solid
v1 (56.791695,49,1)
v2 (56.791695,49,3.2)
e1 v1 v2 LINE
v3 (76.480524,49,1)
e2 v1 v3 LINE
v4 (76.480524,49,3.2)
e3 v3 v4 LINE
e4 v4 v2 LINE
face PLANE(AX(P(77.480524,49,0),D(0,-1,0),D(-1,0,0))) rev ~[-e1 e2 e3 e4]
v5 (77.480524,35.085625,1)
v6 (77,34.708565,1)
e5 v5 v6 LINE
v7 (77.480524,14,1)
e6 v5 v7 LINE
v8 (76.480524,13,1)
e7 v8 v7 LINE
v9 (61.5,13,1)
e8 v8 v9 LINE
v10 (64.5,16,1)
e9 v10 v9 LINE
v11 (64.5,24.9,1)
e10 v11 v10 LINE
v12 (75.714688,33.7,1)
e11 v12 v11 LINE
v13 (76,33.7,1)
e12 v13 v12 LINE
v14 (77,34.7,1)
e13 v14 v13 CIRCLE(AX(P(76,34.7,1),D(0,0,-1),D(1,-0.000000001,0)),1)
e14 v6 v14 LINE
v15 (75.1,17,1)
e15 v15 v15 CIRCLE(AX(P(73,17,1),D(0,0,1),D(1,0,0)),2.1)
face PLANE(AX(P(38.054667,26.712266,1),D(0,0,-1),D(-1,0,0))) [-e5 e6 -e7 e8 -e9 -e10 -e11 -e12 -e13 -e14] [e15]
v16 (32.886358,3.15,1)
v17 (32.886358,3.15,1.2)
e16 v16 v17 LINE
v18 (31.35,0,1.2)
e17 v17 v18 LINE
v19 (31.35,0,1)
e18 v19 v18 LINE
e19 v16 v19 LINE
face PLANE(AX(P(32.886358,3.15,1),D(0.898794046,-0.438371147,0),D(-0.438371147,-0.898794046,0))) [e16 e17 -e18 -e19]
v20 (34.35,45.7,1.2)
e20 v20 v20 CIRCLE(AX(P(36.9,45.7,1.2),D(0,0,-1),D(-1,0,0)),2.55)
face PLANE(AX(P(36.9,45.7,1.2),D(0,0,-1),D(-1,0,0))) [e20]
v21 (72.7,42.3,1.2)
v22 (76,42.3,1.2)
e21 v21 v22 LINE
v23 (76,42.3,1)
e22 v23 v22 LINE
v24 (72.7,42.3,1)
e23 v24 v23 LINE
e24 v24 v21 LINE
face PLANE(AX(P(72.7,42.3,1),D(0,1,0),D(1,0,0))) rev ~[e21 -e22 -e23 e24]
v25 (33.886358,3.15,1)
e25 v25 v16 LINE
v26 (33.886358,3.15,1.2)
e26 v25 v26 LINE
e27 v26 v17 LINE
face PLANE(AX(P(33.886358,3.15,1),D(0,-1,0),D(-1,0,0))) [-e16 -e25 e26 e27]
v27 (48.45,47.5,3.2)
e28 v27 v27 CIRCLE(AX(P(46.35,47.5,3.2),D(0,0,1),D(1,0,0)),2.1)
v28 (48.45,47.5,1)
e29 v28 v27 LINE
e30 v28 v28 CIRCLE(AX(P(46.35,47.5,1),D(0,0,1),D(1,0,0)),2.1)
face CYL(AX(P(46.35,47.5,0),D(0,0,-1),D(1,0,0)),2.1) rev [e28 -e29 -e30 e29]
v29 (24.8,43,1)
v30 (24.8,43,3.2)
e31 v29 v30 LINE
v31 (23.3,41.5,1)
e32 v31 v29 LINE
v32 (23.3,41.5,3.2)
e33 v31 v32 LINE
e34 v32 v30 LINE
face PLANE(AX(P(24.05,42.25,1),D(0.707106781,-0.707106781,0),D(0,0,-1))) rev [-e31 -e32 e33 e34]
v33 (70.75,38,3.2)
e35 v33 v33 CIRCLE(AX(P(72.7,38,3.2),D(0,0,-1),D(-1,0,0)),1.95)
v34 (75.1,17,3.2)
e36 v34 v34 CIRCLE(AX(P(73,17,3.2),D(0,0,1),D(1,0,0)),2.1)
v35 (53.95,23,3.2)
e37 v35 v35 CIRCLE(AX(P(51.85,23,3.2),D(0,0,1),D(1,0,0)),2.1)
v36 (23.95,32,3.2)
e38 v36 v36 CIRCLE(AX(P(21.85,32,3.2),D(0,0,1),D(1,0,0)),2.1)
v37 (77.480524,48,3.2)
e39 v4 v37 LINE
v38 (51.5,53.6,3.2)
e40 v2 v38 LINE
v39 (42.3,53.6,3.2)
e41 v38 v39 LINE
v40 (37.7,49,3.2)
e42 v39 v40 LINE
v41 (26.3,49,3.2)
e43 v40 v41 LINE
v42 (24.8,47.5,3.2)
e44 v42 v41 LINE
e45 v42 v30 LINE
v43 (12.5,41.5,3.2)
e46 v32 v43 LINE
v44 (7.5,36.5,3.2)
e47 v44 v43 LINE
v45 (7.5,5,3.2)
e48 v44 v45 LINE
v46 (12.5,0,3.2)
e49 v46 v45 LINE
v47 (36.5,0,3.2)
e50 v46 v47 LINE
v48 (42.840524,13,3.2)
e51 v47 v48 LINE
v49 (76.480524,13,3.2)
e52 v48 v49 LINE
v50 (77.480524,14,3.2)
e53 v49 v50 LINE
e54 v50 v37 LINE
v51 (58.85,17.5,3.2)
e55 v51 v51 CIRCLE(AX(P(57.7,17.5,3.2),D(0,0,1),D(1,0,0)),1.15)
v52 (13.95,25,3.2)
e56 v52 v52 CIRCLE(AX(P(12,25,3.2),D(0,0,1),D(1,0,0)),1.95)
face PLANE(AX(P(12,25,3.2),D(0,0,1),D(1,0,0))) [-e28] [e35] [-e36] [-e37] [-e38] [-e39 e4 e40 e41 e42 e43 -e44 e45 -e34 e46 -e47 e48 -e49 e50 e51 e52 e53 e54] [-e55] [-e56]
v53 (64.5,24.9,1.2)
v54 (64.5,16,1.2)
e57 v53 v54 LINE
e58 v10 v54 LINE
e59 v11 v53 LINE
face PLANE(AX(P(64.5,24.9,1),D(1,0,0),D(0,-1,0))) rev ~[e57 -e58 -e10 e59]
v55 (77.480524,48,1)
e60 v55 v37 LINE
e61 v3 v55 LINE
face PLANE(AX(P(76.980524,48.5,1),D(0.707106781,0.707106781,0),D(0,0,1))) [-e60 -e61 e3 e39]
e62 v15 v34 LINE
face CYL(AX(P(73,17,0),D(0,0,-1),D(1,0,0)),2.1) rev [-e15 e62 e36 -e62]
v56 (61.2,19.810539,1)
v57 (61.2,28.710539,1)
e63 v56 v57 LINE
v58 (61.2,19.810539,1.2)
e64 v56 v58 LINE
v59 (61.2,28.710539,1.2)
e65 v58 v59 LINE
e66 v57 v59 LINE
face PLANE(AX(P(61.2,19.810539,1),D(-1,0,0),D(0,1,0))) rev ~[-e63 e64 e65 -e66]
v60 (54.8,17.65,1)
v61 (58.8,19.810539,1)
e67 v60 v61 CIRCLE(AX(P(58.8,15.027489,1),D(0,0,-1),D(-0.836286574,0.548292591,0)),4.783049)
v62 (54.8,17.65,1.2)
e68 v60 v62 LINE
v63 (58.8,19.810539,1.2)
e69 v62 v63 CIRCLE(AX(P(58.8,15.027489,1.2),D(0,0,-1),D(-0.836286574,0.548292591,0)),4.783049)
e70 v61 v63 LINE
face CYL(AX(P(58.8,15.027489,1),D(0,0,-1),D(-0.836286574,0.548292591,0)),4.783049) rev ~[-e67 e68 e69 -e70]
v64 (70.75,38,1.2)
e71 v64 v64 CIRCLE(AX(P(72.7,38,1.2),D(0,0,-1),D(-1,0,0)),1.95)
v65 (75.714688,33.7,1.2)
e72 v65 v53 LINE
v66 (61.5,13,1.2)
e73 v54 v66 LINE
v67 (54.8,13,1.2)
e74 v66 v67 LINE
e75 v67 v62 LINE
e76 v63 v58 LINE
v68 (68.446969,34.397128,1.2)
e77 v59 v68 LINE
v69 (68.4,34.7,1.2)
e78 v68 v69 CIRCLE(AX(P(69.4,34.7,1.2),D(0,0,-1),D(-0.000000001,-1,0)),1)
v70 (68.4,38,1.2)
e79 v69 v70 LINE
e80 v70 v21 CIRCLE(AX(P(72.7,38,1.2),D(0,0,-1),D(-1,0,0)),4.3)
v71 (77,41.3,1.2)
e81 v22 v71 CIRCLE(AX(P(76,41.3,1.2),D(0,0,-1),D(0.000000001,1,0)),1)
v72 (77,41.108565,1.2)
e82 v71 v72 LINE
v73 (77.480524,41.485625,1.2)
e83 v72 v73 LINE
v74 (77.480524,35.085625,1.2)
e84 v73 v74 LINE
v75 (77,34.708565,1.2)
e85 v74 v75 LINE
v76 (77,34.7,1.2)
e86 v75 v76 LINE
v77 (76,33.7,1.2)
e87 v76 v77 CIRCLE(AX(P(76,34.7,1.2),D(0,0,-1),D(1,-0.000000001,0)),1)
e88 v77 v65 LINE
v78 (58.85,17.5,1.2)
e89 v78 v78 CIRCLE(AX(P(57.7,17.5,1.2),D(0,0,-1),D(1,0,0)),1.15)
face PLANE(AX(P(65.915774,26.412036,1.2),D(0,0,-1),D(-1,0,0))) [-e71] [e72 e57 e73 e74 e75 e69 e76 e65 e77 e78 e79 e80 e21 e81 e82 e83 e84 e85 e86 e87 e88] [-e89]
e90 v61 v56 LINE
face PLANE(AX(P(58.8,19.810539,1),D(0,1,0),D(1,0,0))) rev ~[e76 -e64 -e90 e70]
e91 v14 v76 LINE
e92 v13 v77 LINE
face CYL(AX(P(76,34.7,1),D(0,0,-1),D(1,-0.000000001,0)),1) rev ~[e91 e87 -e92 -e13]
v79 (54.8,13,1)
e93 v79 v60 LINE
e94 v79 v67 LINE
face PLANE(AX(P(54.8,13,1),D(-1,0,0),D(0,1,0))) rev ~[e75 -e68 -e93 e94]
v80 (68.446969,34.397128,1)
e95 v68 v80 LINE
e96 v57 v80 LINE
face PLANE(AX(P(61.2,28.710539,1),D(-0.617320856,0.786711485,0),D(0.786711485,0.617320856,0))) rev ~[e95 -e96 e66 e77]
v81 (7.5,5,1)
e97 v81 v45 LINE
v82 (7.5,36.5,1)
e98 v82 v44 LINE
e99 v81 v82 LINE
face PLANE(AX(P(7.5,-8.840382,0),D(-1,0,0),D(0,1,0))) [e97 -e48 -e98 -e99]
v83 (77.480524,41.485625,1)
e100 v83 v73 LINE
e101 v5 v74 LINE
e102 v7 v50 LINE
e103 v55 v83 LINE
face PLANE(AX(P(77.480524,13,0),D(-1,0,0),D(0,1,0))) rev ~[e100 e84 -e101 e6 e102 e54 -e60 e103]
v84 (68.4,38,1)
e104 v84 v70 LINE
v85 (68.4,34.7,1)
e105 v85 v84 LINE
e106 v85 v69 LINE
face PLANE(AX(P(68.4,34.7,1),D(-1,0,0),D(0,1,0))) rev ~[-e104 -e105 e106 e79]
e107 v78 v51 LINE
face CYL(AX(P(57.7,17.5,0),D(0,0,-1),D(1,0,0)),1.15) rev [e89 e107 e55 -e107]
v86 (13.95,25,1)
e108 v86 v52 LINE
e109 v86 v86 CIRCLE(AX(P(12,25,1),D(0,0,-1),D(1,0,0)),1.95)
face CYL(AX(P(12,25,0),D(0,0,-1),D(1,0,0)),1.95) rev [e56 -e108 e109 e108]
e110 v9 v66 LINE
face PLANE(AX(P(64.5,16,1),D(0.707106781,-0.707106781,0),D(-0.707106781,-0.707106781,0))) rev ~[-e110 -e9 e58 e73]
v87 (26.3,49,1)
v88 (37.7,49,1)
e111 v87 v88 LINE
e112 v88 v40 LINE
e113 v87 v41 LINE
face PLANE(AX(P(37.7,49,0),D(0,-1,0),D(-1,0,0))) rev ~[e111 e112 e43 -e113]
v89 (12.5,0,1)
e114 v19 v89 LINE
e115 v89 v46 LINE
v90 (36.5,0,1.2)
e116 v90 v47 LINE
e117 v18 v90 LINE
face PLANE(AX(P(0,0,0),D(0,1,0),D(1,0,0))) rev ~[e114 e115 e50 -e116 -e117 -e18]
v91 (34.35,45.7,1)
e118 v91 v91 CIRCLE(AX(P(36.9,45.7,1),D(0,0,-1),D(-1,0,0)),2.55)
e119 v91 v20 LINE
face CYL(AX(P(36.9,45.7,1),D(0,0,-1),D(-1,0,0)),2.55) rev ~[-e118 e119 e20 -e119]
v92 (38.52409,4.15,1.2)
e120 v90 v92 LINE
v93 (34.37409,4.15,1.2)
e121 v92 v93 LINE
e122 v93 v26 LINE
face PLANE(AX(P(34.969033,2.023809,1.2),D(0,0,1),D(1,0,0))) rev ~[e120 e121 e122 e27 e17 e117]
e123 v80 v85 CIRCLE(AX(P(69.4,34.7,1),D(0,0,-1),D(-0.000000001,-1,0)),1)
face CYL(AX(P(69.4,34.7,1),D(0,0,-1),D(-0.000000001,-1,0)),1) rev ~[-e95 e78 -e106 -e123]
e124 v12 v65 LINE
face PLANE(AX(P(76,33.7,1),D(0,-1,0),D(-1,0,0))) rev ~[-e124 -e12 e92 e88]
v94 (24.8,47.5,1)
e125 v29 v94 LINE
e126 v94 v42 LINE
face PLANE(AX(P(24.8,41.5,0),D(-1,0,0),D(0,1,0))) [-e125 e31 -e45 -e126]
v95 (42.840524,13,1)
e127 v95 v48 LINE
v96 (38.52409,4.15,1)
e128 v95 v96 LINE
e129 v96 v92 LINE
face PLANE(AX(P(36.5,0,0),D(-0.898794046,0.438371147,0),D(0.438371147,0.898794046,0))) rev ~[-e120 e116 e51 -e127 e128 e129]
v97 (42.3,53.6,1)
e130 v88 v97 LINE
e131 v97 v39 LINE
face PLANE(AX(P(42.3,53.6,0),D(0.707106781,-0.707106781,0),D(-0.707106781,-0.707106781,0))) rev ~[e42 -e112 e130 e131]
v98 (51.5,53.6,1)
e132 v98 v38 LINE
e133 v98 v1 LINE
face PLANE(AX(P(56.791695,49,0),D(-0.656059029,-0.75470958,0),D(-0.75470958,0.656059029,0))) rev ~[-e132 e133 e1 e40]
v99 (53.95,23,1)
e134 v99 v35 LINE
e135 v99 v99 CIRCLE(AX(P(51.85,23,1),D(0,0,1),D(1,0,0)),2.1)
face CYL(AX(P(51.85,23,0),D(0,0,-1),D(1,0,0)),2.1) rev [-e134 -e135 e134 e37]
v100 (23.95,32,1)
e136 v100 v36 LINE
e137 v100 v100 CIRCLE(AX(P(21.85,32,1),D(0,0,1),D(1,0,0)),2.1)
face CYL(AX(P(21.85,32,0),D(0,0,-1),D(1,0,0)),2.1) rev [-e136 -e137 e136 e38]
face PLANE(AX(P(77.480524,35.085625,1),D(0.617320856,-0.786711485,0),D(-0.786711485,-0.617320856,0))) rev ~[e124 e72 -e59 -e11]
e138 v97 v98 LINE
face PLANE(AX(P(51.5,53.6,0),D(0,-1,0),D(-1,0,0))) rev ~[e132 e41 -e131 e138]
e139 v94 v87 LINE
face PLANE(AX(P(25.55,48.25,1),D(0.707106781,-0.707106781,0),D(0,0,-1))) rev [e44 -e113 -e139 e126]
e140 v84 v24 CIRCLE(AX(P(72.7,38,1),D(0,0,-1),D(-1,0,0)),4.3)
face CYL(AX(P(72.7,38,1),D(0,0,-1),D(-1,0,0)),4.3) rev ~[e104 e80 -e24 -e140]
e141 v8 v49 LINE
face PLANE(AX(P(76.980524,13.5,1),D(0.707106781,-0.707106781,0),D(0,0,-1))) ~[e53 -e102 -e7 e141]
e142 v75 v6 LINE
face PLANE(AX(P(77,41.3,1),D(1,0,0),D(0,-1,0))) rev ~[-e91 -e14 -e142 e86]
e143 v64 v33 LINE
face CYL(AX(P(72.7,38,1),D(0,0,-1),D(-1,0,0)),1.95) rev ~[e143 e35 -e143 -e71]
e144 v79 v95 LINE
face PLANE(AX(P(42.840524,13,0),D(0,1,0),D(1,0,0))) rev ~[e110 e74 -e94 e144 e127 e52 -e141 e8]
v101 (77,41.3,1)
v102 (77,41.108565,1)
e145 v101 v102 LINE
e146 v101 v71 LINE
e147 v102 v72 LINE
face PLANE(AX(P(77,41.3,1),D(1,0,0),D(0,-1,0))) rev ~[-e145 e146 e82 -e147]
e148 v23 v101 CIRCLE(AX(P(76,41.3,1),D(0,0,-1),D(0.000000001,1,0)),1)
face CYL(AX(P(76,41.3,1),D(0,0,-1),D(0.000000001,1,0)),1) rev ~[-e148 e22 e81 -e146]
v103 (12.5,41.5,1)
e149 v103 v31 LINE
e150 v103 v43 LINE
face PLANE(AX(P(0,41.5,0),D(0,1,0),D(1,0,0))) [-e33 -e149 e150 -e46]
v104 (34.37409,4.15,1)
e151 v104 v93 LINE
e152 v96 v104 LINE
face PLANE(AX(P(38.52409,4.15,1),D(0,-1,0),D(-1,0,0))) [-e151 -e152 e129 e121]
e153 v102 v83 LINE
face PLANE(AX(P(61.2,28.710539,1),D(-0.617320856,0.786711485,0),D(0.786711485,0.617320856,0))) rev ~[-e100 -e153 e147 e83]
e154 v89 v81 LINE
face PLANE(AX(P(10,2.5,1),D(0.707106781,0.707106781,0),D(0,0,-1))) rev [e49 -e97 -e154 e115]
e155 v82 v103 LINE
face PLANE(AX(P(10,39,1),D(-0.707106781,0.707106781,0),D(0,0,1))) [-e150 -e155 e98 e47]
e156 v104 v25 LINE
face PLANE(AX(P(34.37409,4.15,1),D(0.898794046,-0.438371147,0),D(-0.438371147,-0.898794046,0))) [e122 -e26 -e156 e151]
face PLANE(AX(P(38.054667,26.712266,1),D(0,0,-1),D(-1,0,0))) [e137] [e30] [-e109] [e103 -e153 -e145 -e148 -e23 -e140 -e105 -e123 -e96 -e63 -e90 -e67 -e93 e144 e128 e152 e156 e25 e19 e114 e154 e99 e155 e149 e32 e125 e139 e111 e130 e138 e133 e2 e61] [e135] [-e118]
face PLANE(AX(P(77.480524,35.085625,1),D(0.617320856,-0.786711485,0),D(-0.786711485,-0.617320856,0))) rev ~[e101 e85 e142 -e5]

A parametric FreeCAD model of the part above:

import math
import FreeCAD as App
import Part
import Sketcher

V = App.Vector
Q = App.Units.Quantity


def edges_at(feature, points):
    """Names of the edges that pass closest to the given points."""
    edges = feature.Shape.Edges
    near = lambda p: min(range(len(edges)), key=lambda i: edges[i].distToShape(Part.Vertex(*p))[0])
    return sorted({f"Edge{near(p) + 1}" for p in points})

doc = App.newDocument("Part")
body = doc.addObject("PartDesign::Body", "Body")

# Sketch on XY plane
sketch1 = body.newObject("Sketcher::SketchObject", "Sketch")
sketch1.AttachmentSupport = (doc.getObject("XY_Plane"), [""])
sketch1.MapMode = "FlatFace"
sketch1.addGeometry([
    Part.LineSegment(V(0, 0, 0), V(36.5, 0, 0)),  # 0
    Part.LineSegment(V(36.5, 0, 0), V(42.8, 13, 0)),  # 1
    Part.LineSegment(V(42.8, 13, 0), V(77.5, 13, 0)),  # 2
    Part.LineSegment(V(77.5, 13, 0), V(77.5, 49, 0)),  # 3
    Part.LineSegment(V(77.5, 49, 0), V(56.8, 49, 0)),  # 4
    Part.LineSegment(V(56.8, 49, 0), V(51.5, 53.6, 0)),  # 5
    Part.LineSegment(V(51.5, 53.6, 0), V(42.3, 53.6, 0)),  # 6
    Part.LineSegment(V(42.3, 53.6, 0), V(37.7, 49, 0)),  # 7
    Part.LineSegment(V(37.7, 49, 0), V(11.9, 49, 0)),  # 8
    Part.LineSegment(V(11.9, 49, 0), V(0, 37.1, 0)),  # 9
    Part.LineSegment(V(0, 37.1, 0), V(0, 0, 0)),  # 10
    Part.Circle(V(12, 25, 0), V(0, 0, 1), 4.2),  # 11
    Part.Circle(V(21.9, 32, 0), V(0, 0, 1), 2.1),  # 12
    Part.Circle(V(57.7, 17.5, 0), V(0, 0, 1), 2.7),  # 13
    Part.Circle(V(51.9, 23, 0), V(0, 0, 1), 2.1),  # 14
    Part.Circle(V(73, 17, 0), V(0, 0, 1), 2.1),  # 15
    Part.Circle(V(46.4, 47.5, 0), V(0, 0, 1), 2.1),  # 16
], False)
sketch1.addConstraint([
    Sketcher.Constraint("Coincident", 0, 2, 1, 1),
    Sketcher.Constraint("Coincident", 1, 2, 2, 1),
    Sketcher.Constraint("Coincident", 2, 2, 3, 1),
    Sketcher.Constraint("Coincident", 3, 2, 4, 1),
    Sketcher.Constraint("Coincident", 4, 2, 5, 1),
    Sketcher.Constraint("Coincident", 5, 2, 6, 1),
    Sketcher.Constraint("Coincident", 6, 2, 7, 1),
    Sketcher.Constraint("Coincident", 7, 2, 8, 1),
    Sketcher.Constraint("Coincident", 8, 2, 9, 1),
    Sketcher.Constraint("Coincident", 9, 2, 10, 1),
    Sketcher.Constraint("Coincident", 10, 2, 0, 1),
    Sketcher.Constraint("Horizontal", 0),
    Sketcher.Constraint("Horizontal", 2),
    Sketcher.Constraint("Vertical", 3),
    Sketcher.Constraint("Horizontal", 4),
    Sketcher.Constraint("Horizontal", 6),
    Sketcher.Constraint("Horizontal", 8),
    Sketcher.Constraint("Vertical", 10),
    Sketcher.Constraint("Coincident", 10, 2, -1, 1),
    Sketcher.Constraint("Equal", 12, 14),
    Sketcher.Constraint("Equal", 14, 15),
    Sketcher.Constraint("Equal", 15, 16),
    Sketcher.Constraint("Parallel", 7, 9),
    Sketcher.Constraint("Horizontal", 4, 2, 7, 2),
    Sketcher.Constraint("Diameter", 11, 8.4),
    Sketcher.Constraint("Diameter", 12, 4.2),
    Sketcher.Constraint("Diameter", 13, 5.4),
    Sketcher.Constraint("DistanceY", 3, 1, 3, 2, 36.0),
    Sketcher.Constraint("Angle", 1, Q("64 deg")),
    Sketcher.Constraint("Angle", 5, Q("139 deg")),
    Sketcher.Constraint("Angle", 7, Q("-135 deg")),
    Sketcher.Constraint("DistanceX", 0, 1, 0, 2, 36.5),
    Sketcher.Constraint("DistanceX", 6, 2, 6, 1, 9.2),
    Sketcher.Constraint("DistanceX", 8, 2, 8, 1, 25.8),
    Sketcher.Constraint("DistanceY", 10, 2, 10, 1, 37.1),
    Sketcher.Constraint("DistanceX", -1, 1, 11, 3, 12.0),
    Sketcher.Constraint("DistanceY", -1, 1, 11, 3, 25.0),
    Sketcher.Constraint("DistanceY", -1, 1, 12, 3, 32.0),
    Sketcher.Constraint("DistanceY", -1, 1, 14, 3, 23.0),
    Sketcher.Constraint("DistanceX", -1, 1, 15, 3, 73.0),
    Sketcher.Constraint("DistanceY", -1, 1, 15, 3, 17.0),
    Sketcher.Constraint("DistanceY", -1, 1, 1, 2, 13.0),
    Sketcher.Constraint("DistanceX", 12, 3, 14, 3, 30.0),
    Sketcher.Constraint("DistanceY", 13, 3, 16, 3, 30.0),
    Sketcher.Constraint("DistanceX", 2, 1, 2, 2, 34.64),
    Sketcher.Constraint("DistanceX", -1, 1, 13, 3, 57.7),
    Sketcher.Constraint("DistanceY", -1, 1, 13, 3, 17.5),
    Sketcher.Constraint("DistanceX", -1, 1, 5, 2, 51.5),
    Sketcher.Constraint("DistanceX", 16, 3, 14, 3, 5.5),
    Sketcher.Constraint("DistanceX", -1, 1, 12, 3, 21.85),
])
pad1 = body.newObject("PartDesign::Pad", "Pad")
pad1.Profile = sketch1
pad1.Length = 3.2

# Sketch on XY plane
sketch2 = body.newObject("Sketcher::SketchObject", "Sketch001")
sketch2.AttachmentSupport = (doc.getObject("XY_Plane"), [""])
sketch2.MapMode = "FlatFace"
sketch2.addGeometry([
    Part.Circle(V(12, 25, 0), V(0, 0, 1), 4.2),
    Part.Circle(V(12, 25, 0), V(0, 0, 1), 1.9),
    Part.Circle(V(57.7, 17.5, 0), V(0, 0, 1), 2.7),
    Part.Circle(V(57.7, 17.5, 0), V(0, 0, 1), 1.1),
], False)
sketch2.addConstraint([
    Sketcher.Constraint("Coincident", 1, 3, 0, 3),
    Sketcher.Constraint("Coincident", 3, 3, 2, 3),
    Sketcher.Constraint("Diameter", 0, 8.4),
    Sketcher.Constraint("Diameter", 1, 3.9),
    Sketcher.Constraint("Diameter", 2, 5.4),
    Sketcher.Constraint("Diameter", 3, 2.3),
    Sketcher.Constraint("DistanceX", -1, 1, 0, 3, 12.0),
    Sketcher.Constraint("DistanceY", -1, 1, 0, 3, 25.0),
    Sketcher.Constraint("DistanceX", -1, 1, 2, 3, 57.7),
    Sketcher.Constraint("DistanceY", -1, 1, 2, 3, 17.5),
])
pad2 = body.newObject("PartDesign::Pad", "Pad001")
pad2.Profile = sketch2
pad2.Length = 3.2

# Sketch on XY plane
sketch3 = body.newObject("Sketcher::SketchObject", "Sketch002")
sketch3.AttachmentSupport = (doc.getObject("XY_Plane"), [""])
sketch3.MapMode = "FlatFace"
sketch3.addGeometry([
    Part.LineSegment(V(11.9, 49, 0), V(37.7, 49, 0)),  # 0
    Part.LineSegment(V(37.7, 49, 0), V(42.3, 53.6, 0)),  # 1
    Part.LineSegment(V(42.3, 53.6, 0), V(51.5, 53.6, 0)),  # 2
    Part.LineSegment(V(51.5, 53.6, 0), V(56.8, 49, 0)),  # 3
    Part.LineSegment(V(56.8, 49, 0), V(77.5, 49, 0)),  # 4
    Part.LineSegment(V(77.5, 49, 0), V(77.5, 13, 0)),  # 5
    Part.LineSegment(V(77.5, 13, 0), V(42.8, 13, 0)),  # 6
    Part.LineSegment(V(42.8, 13, 0), V(36.5, 0, 0)),  # 7
    Part.LineSegment(V(36.5, 0, 0), V(0, 0, 0)),  # 8
    Part.LineSegment(V(0, 0, 0), V(0, 37.1, 0)),  # 9
    Part.LineSegment(V(0, 37.1, 0), V(11.9, 49, 0)),  # 10
    Part.Circle(V(73, 17, 0), V(0, 0, 1), 2.1),  # 11
    Part.Circle(V(57.7, 17.5, 0), V(0, 0, 1), 1.1),  # 12
    Part.Circle(V(51.9, 23, 0), V(0, 0, 1), 2.1),  # 13
    Part.Circle(V(12, 25, 0), V(0, 0, 1), 1.9),  # 14
    Part.Circle(V(21.9, 32, 0), V(0, 0, 1), 2.1),  # 15
    Part.Circle(V(46.4, 47.5, 0), V(0, 0, 1), 2.1),  # 16
], False)
sketch3.addConstraint([
    Sketcher.Constraint("Coincident", 0, 2, 1, 1),
    Sketcher.Constraint("Coincident", 1, 2, 2, 1),
    Sketcher.Constraint("Coincident", 2, 2, 3, 1),
    Sketcher.Constraint("Coincident", 3, 2, 4, 1),
    Sketcher.Constraint("Coincident", 4, 2, 5, 1),
    Sketcher.Constraint("Coincident", 5, 2, 6, 1),
    Sketcher.Constraint("Coincident", 6, 2, 7, 1),
    Sketcher.Constraint("Coincident", 7, 2, 8, 1),
    Sketcher.Constraint("Coincident", 8, 2, 9, 1),
    Sketcher.Constraint("Coincident", 9, 2, 10, 1),
    Sketcher.Constraint("Coincident", 10, 2, 0, 1),
    Sketcher.Constraint("Horizontal", 0),
    Sketcher.Constraint("Horizontal", 2),
    Sketcher.Constraint("Horizontal", 4),
    Sketcher.Constraint("Vertical", 5),
    Sketcher.Constraint("Horizontal", 6),
    Sketcher.Constraint("Horizontal", 8),
    Sketcher.Constraint("Vertical", 9),
    Sketcher.Constraint("Coincident", 8, 2, -1, 1),
    Sketcher.Constraint("Equal", 11, 13),
    Sketcher.Constraint("Equal", 13, 15),
    Sketcher.Constraint("Equal", 15, 16),
    Sketcher.Constraint("Parallel", 1, 10),
    Sketcher.Constraint("Horizontal", 0, 2, 3, 2),
    Sketcher.Constraint("Diameter", 11, 4.2),
    Sketcher.Constraint("Diameter", 12, 2.3),
    Sketcher.Constraint("Diameter", 14, 3.9),
    Sketcher.Constraint("DistanceY", 5, 2, 5, 1, 36.0),
    Sketcher.Constraint("Angle", 1, Q("45 deg")),
    Sketcher.Constraint("Angle", 3, Q("-41 deg")),
    Sketcher.Constraint("Angle", 7, Q("-116 deg")),
    Sketcher.Constraint("DistanceX", 0, 1, 0, 2, 25.8),
    Sketcher.Constraint("DistanceX", 2, 1, 2, 2, 9.2),
    Sketcher.Constraint("DistanceX", 8, 2, 8, 1, 36.5),
    Sketcher.Constraint("DistanceY", 9, 1, 9, 2, 37.1),
    Sketcher.Constraint("DistanceX", -1, 1, 11, 3, 73.0),
    Sketcher.Constraint("DistanceY", -1, 1, 11, 3, 17.0),
    Sketcher.Constraint("DistanceY", -1, 1, 13, 3, 23.0),
    Sketcher.Constraint("DistanceX", -1, 1, 14, 3, 12.0),
    Sketcher.Constraint("DistanceY", -1, 1, 14, 3, 25.0),
    Sketcher.Constraint("DistanceY", -1, 1, 15, 3, 32.0),
    Sketcher.Constraint("DistanceY", -1, 1, 0, 2, 49.0),
    Sketcher.Constraint("DistanceX", 15, 3, 13, 3, 30.0),
    Sketcher.Constraint("DistanceY", 12, 3, 16, 3, 30.0),
    Sketcher.Constraint("DistanceX", 0, 2, 12, 3, 20.0),
    Sketcher.Constraint("DistanceX", 6, 2, 6, 1, 34.64),
    Sketcher.Constraint("DistanceY", -1, 1, 12, 3, 17.5),
    Sketcher.Constraint("DistanceX", -1, 1, 1, 2, 42.3),
    Sketcher.Constraint("DistanceX", 16, 3, 13, 3, 5.5),
    Sketcher.Constraint("DistanceX", -1, 1, 13, 3, 51.85),
])
pocket1 = body.newObject("PartDesign::Pocket", "Pocket")
pocket1.Profile = sketch3
pocket1.Length = 1
pocket1.Reversed = True
doc.recompute()

chamfer = body.newObject("PartDesign::Chamfer", "Chamfer")
chamfer.Base = (pocket1, edges_at(pocket1, [(0, 0, 2.1)]))
chamfer.Size = 1
doc.recompute()

chamfer2 = body.newObject("PartDesign::Chamfer", "Chamfer001")
chamfer2.Base = (chamfer, edges_at(chamfer, [(77.481, 13, 2.1)]))
chamfer2.Size = 1

# Sketch on XY plane
sketch4 = body.newObject("Sketcher::SketchObject", "Sketch003")
sketch4.AttachmentSupport = (doc.getObject("XY_Plane"), [""])
sketch4.MapMode = "FlatFace"
sketch4.AttachmentOffset = App.Placement(V(0, 0, 1), App.Rotation())
sketch4.addGeometry(Part.Circle(V(72.7, 38, 0), V(0, 0, 1), 1.9), False)
sketch4.addConstraint([
    Sketcher.Constraint("Diameter", 0, 3.9),
    Sketcher.Constraint("DistanceY", -1, 1, 0, 3, 38.0),
    Sketcher.Constraint("DistanceX", -1, 1, 0, 3, 72.7),
])
pocket2 = body.newObject("PartDesign::Pocket", "Pocket001")
pocket2.Profile = sketch4
pocket2.Length = 10
pocket2.Reversed = True

# Sketch on XY plane
sketch5 = body.newObject("Sketcher::SketchObject", "Sketch004")
sketch5.AttachmentSupport = (doc.getObject("XY_Plane"), [""])
sketch5.MapMode = "FlatFace"
sketch5.addGeometry([
    Part.LineSegment(V(0, 49, 0), V(0, 42, 0)),
    Part.LineSegment(V(0, 42, 0), V(25, 42, 0)),
    Part.LineSegment(V(25, 42, 0), V(25, 49, 0)),
    Part.LineSegment(V(25, 49, 0), V(0, 49, 0)),
], False)
sketch5.addConstraint([
    Sketcher.Constraint("Coincident", 0, 2, 1, 1),
    Sketcher.Constraint("Coincident", 1, 2, 2, 1),
    Sketcher.Constraint("Coincident", 2, 2, 3, 1),
    Sketcher.Constraint("Coincident", 3, 2, 0, 1),
    Sketcher.Constraint("Vertical", 0),
    Sketcher.Constraint("Horizontal", 1),
    Sketcher.Constraint("Vertical", 2),
    Sketcher.Constraint("Horizontal", 3),
    Sketcher.Constraint("PointOnObject", 0, 2, -2),
    Sketcher.Constraint("DistanceX", 1, 1, 1, 2, 24.8),
    Sketcher.Constraint("DistanceY", 0, 2, 0, 1, 7.5),
    Sketcher.Constraint("DistanceY", -1, 1, 2, 2, 49.0),
])
pocket3 = body.newObject("PartDesign::Pocket", "Pocket002")
pocket3.Profile = sketch5
pocket3.Length = 10
pocket3.Reversed = True
doc.recompute()

chamfer3 = body.newObject("PartDesign::Chamfer", "Chamfer002")
chamfer3.Base = (pocket3, edges_at(pocket3, [(24.8, 49, 2.1), (24.8, 41.5, 2.1)]))
chamfer3.Size = 1.5

# Sketch on XY plane
sketch6 = body.newObject("Sketcher::SketchObject", "Sketch005")
sketch6.AttachmentSupport = (doc.getObject("XY_Plane"), [""])
sketch6.MapMode = "FlatFace"
sketch6.AttachmentOffset = App.Placement(V(0, 0, 1), App.Rotation())
sketch6.addGeometry([
    Part.Circle(V(36.9, 45.7, 0), V(0, 0, 1), 2.5),  # 0
    Part.LineSegment(V(72.7, 42.3, 0), V(76, 42.3, 0)),  # 1
    Part.ArcOfCircle(Part.Circle(V(76, 41.3, 0), V(0, 0, 1), 1), math.radians(0), math.radians(90)),  # 2
    Part.LineSegment(V(77, 41.3, 0), V(77, 34.7, 0)),  # 3
    Part.ArcOfCircle(Part.Circle(V(76, 34.7, 0), V(0, 0, 1), 1), math.radians(-90), math.radians(0)),  # 4
    Part.LineSegment(V(76, 33.7, 0), V(69.4, 33.7, 0)),  # 5
    Part.ArcOfCircle(Part.Circle(V(69.4, 34.7, 0), V(0, 0, 1), 1), math.radians(-180), math.radians(-90)),  # 6
    Part.LineSegment(V(68.4, 34.7, 0), V(68.4, 38, 0)),  # 7
    Part.ArcOfCircle(Part.Circle(V(72.7, 38, 0), V(0, 0, 1), 4.3), math.radians(90), math.radians(180)),  # 8
], False)
sketch6.addConstraint([
    Sketcher.Constraint("Tangent", 1, 2, 2, 2),
    Sketcher.Constraint("Tangent", 2, 1, 3, 1),
    Sketcher.Constraint("Tangent", 3, 2, 4, 2),
    Sketcher.Constraint("Tangent", 4, 1, 5, 1),
    Sketcher.Constraint("Tangent", 5, 2, 6, 2),
    Sketcher.Constraint("Tangent", 6, 1, 7, 1),
    Sketcher.Constraint("Tangent", 7, 2, 8, 2),
    Sketcher.Constraint("Tangent", 8, 1, 1, 1),
    Sketcher.Constraint("Horizontal", 1),
    Sketcher.Constraint("Vertical", 3),
    Sketcher.Constraint("Horizontal", 5),
    Sketcher.Constraint("Vertical", 7),
    Sketcher.Constraint("Equal", 2, 4),
    Sketcher.Constraint("Equal", 4, 6),
    Sketcher.Constraint("Equal", 5, 3),
    Sketcher.Constraint("Radius", 2, 1.0),
    Sketcher.Constraint("Diameter", 0, 5.1),
    Sketcher.Constraint("Radius", 8, 4.3),
    Sketcher.Constraint("DistanceX", 1, 1, 1, 2, 3.3),
    Sketcher.Constraint("DistanceX", -1, 1, 2, 3, 76.0),
    Sketcher.Constraint("DistanceY", -1, 1, 8, 3, 38.0),
    Sketcher.Constraint("DistanceY", 4, 3, 0, 3, 11.0),
    Sketcher.Constraint("DistanceX", -1, 1, 0, 3, 36.9),
])
pocket4 = body.newObject("PartDesign::Pocket", "Pocket003")
pocket4.Profile = sketch6
pocket4.Length = 0.2
pocket4.Reversed = True
doc.recompute()

chamfer4 = body.newObject("PartDesign::Chamfer", "Chamfer003")
chamfer4.Base = (pocket4, edges_at(pocket4, [(77.481, 49, 2.1)]))
chamfer4.Size = 1

# Sketch on XY plane
sketch7 = body.newObject("Sketcher::SketchObject", "Sketch006")
sketch7.AttachmentSupport = (doc.getObject("XY_Plane"), [""])
sketch7.MapMode = "FlatFace"
sketch7.AttachmentOffset = App.Placement(V(0, 0, 1), App.Rotation())
sketch7.addGeometry([
    Part.LineSegment(V(61.2, 19.8, 0), V(61.2, 28.7, 0)),  # 0
    Part.LineSegment(V(61.2, 28.7, 0), V(77.5, 41.5, 0)),  # 1
    Part.LineSegment(V(77.5, 41.5, 0), V(77.5, 35.1, 0)),  # 2
    Part.LineSegment(V(77.5, 35.1, 0), V(64.5, 24.9, 0)),  # 3
    Part.LineSegment(V(64.5, 24.9, 0), V(64.5, 16, 0)),  # 4
    Part.LineSegment(V(64.5, 16, 0), V(61.5, 13, 0)),  # 5
    Part.LineSegment(V(61.5, 13, 0), V(54.8, 13, 0)),  # 6
    Part.LineSegment(V(54.8, 13, 0), V(54.8, 17.6, 0)),  # 7
    Part.ArcOfCircle(Part.Circle(V(58.8, 15, 0), V(0, 0, 1), 4.8), math.radians(90), math.radians(147)),  # 8
    Part.LineSegment(V(58.8, 19.8, 0), V(61.2, 19.8, 0)),  # 9
    Part.LineSegment(V(34.4, 4.2, 0), V(38.5, 4.2, 0)),  # 10
    Part.LineSegment(V(38.5, 4.2, 0), V(36.5, 0, 0)),  # 11
    Part.LineSegment(V(36.5, 0, 0), V(31.4, 0, 0)),  # 12
    Part.LineSegment(V(31.4, 0, 0), V(32.9, 3.1, 0)),  # 13
    Part.LineSegment(V(32.9, 3.1, 0), V(33.9, 3.1, 0)),  # 14
    Part.LineSegment(V(33.9, 3.1, 0), V(34.4, 4.2, 0)),  # 15
], False)
sketch7.addConstraint([
    Sketcher.Constraint("Coincident", 0, 2, 1, 1),
    Sketcher.Constraint("Coincident", 1, 2, 2, 1),
    Sketcher.Constraint("Coincident", 2, 2, 3, 1),
    Sketcher.Constraint("Coincident", 3, 2, 4, 1),
    Sketcher.Constraint("Coincident", 4, 2, 5, 1),
    Sketcher.Constraint("Coincident", 5, 2, 6, 1),
    Sketcher.Constraint("Coincident", 6, 2, 7, 1),
    Sketcher.Constraint("Coincident", 7, 2, 8, 2),
    Sketcher.Constraint("Tangent", 8, 1, 9, 1),
    Sketcher.Constraint("Coincident", 9, 2, 0, 1),
    Sketcher.Constraint("Coincident", 10, 2, 11, 1),
    Sketcher.Constraint("Coincident", 11, 2, 12, 1),
    Sketcher.Constraint("Coincident", 12, 2, 13, 1),
    Sketcher.Constraint("Coincident", 13, 2, 14, 1),
    Sketcher.Constraint("Coincident", 14, 2, 15, 1),
    Sketcher.Constraint("Coincident", 15, 2, 10, 1),
    Sketcher.Constraint("Vertical", 0),
    Sketcher.Constraint("Vertical", 2),
    Sketcher.Constraint("Vertical", 4),
    Sketcher.Constraint("Horizontal", 6),
    Sketcher.Constraint("Vertical", 7),
    Sketcher.Constraint("Horizontal", 9),
    Sketcher.Constraint("Horizontal", 10),
    Sketcher.Constraint("Horizontal", 12),
    Sketcher.Constraint("Horizontal", 14),
    Sketcher.Constraint("PointOnObject", 11, 2, -1),
    Sketcher.Constraint("Parallel", 1, 3),
    Sketcher.Constraint("Parallel", 11, 13),
    Sketcher.Constraint("Parallel", 13, 15),
    Sketcher.Constraint("Equal", 0, 4),
    Sketcher.Constraint("DistanceX", 14, 1, 14, 2, 1.0),
    Sketcher.Constraint("Angle", 5, Q("-135 deg")),
    Sketcher.Constraint("Angle", 11, Q("-116 deg")),
    Sketcher.Constraint("DistanceX", 6, 2, 6, 1, 6.7),
    Sketcher.Constraint("DistanceX", 9, 1, 9, 2, 2.4),
    Sketcher.Constraint("DistanceY", 0, 1, 0, 2, 8.9),
    Sketcher.Constraint("DistanceY", 2, 2, 2, 1, 6.4),
    Sketcher.Constraint("DistanceY", -1, 1, 4, 2, 16.0),
    Sketcher.Constraint("DistanceY", -1, 1, 5, 2, 13.0),
    Sketcher.Constraint("DistanceX", 6, 2, 8, 3, 4.0),
    Sketcher.Constraint("DistanceX", 11, 2, 5, 2, 25.0),
    Sketcher.Constraint("DistanceY", 13, 2, 10, 2, 1.0),
    Sketcher.Constraint("DistanceX", 10, 1, 10, 2, 4.15),
    Sketcher.Constraint("DistanceY", 7, 1, 7, 2, 4.65),
    Sketcher.Constraint("DistanceX", -1, 1, 8, 3, 58.8),
    Sketcher.Constraint("DistanceY", 10, 2, 7, 2, 13.5),
    Sketcher.Constraint("Radius", 8, 4.783049),
    Sketcher.Constraint("Distance", 1, 20.694402),
])
pocket5 = body.newObject("PartDesign::Pocket", "Pocket004")
pocket5.Profile = sketch7
pocket5.Length = 0.2
pocket5.Reversed = True

# Sketch on XY plane
sketch8 = body.newObject("Sketcher::SketchObject", "Sketch007")
sketch8.AttachmentSupport = (doc.getObject("XY_Plane"), [""])
sketch8.MapMode = "FlatFace"
sketch8.addGeometry([
    Part.LineSegment(V(-10, 62, 0), V(-10, -9, 0)),
    Part.LineSegment(V(-10, -9, 0), V(8, -9, 0)),
    Part.LineSegment(V(8, -9, 0), V(8, 62, 0)),
    Part.LineSegment(V(8, 62, 0), V(-10, 62, 0)),
], False)
sketch8.addConstraint([
    Sketcher.Constraint("Coincident", 0, 2, 1, 1),
    Sketcher.Constraint("Coincident", 1, 2, 2, 1),
    Sketcher.Constraint("Coincident", 2, 2, 3, 1),
    Sketcher.Constraint("Coincident", 3, 2, 0, 1),
    Sketcher.Constraint("Vertical", 0),
    Sketcher.Constraint("Horizontal", 1),
    Sketcher.Constraint("Vertical", 2),
    Sketcher.Constraint("Horizontal", 3),
    Sketcher.Constraint("DistanceX", -1, 1, 1, 2, 7.5),
    Sketcher.Constraint("DistanceY", 0, 2, 0, 1, 70.765419),
    Sketcher.Constraint("DistanceX", 1, 1, 1, 2, 17.729565),
    Sketcher.Constraint("DistanceY", 0, 2, -1, 1, 8.840382),
])
pocket6 = body.newObject("PartDesign::Pocket", "Pocket005")
pocket6.Profile = sketch8
pocket6.Length = 10
pocket6.Reversed = True
doc.recompute()

chamfer5 = body.newObject("PartDesign::Chamfer", "Chamfer004")
chamfer5.Base = (pocket6, edges_at(pocket6, [(7.5, 41.5, 2.1), (7.5, 0, 2.1)]))
chamfer5.Size = 5

doc.recompute()
